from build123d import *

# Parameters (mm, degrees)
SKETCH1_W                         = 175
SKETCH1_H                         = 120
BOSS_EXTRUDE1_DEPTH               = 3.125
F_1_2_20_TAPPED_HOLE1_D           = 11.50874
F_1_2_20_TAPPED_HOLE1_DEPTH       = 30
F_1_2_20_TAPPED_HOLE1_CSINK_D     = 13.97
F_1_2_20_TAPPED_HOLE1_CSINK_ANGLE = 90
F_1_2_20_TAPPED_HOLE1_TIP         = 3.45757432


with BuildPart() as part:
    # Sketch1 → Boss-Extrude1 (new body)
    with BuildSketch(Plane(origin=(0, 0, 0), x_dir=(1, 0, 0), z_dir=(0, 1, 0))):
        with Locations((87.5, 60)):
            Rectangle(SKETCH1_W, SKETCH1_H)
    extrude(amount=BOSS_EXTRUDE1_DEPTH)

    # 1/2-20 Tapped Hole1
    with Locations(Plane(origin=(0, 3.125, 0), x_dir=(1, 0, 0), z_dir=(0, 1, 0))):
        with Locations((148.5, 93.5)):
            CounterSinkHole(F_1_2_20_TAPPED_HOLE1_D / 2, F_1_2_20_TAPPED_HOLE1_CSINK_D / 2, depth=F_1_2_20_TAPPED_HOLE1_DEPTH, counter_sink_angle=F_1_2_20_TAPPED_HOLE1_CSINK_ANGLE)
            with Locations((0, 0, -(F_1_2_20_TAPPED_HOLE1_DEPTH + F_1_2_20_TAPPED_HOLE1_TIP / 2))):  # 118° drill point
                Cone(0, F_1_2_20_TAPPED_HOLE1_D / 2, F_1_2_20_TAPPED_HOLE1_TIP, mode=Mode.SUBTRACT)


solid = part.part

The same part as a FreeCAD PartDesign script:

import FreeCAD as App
import Part
import Sketcher

V = App.Vector
Q = App.Units.Quantity


def add_polygon(sketch, points):
    """Adds a closed chain of lines whose ends are joined by coincident constraints."""
    first, n = sketch.GeometryCount, len(points)
    for a, b in zip(points, points[1:] + points[:1]):
        sketch.addGeometry(Part.LineSegment(App.Vector(*a, 0), App.Vector(*b, 0)), False)
    for i in range(n):
        sketch.addConstraint(Sketcher.Constraint("Coincident", first + i, 2, first + (i + 1) % n, 1))

doc = App.newDocument("Part")
body = doc.addObject("PartDesign::Body", "Body")

sketch1 = body.newObject("Sketcher::SketchObject", "Sketch")
sketch1.AttachmentSupport = (doc.getObject("XZ_Plane"), [""])
sketch1.MapMode = "FlatFace"
add_polygon(sketch1, [(0, -120), (0, 0), (175, 0), (175, -120)])
sketch1.addConstraint([
    Sketcher.Constraint("Vertical", 0),
    Sketcher.Constraint("Horizontal", 1),
    Sketcher.Constraint("Vertical", 2),
    Sketcher.Constraint("Horizontal", 3),
    Sketcher.Constraint("Coincident", 0, 2, -1, 1),
    Sketcher.Constraint("DistanceX", 1, 1, 1, 2, Q("175 mm")),
    Sketcher.Constraint("DistanceY", 0, 1, 0, 2, Q("120 mm")),
])
pad1 = body.newObject("PartDesign::Pad", "Pad")
pad1.Profile = sketch1
pad1.Length = 3.125
pad1.Reversed = True

sketch2 = body.newObject("Sketcher::SketchObject", "Sketch001")
sketch2.AttachmentSupport = (doc.getObject("XZ_Plane"), [""])
sketch2.MapMode = "FlatFace"
sketch2.AttachmentOffset = App.Placement(V(0, 0, -3.125), App.Rotation())
sketch2.addGeometry(Part.Circle(V(148, -94, 0), V(0, 0, 1), 6), False)
sketch2.addConstraint([
    Sketcher.Constraint("DistanceX", -1, 1, 0, 3, Q("148.5 mm")),
    Sketcher.Constraint("DistanceY", 0, 3, -1, 1, Q("93.5 mm")),
    Sketcher.Constraint("Diameter", 0, Q("11.50874 mm")),
])
doc.recompute()
hole = body.newObject("PartDesign::Hole", "Hole")
hole.Profile = sketch2
hole.ThreadType = "None"
hole.Diameter = 11.50874
hole.DepthType = "Dimension"
hole.Depth = 30
hole.DrillPoint = "Angled"
hole.DrillPointAngle = 118
hole.HoleCutType = "Countersink"
hole.HoleCutDiameter = 13.97
hole.HoleCutCountersinkAngle = 90
hole.Reversed = True

doc.recompute()
